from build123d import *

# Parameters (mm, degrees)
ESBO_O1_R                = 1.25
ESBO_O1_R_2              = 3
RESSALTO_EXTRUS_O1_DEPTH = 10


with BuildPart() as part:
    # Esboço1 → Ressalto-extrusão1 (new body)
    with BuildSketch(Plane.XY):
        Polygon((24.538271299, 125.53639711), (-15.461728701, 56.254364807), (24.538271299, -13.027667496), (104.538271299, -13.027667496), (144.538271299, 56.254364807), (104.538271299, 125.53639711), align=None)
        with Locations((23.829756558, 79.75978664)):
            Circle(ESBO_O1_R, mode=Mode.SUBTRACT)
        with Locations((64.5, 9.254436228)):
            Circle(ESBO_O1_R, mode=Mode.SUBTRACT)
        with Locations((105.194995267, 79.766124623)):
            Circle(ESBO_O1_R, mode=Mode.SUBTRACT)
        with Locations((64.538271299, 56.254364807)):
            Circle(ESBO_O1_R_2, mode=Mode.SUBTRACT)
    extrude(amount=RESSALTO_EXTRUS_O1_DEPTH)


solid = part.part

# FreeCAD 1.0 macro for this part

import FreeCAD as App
import Part
import Sketcher
from FreeCAD import Vector
Q = App.Units.Quantity

doc = App.newDocument("Part")
params = doc.addObject("Spreadsheet::Sheet", "Params")
for row, (alias, value) in enumerate([
    ("sketch1_diameter", "6 mm"),
    ("sketch1_diameter2", "2.5 mm"),
    ("sketch1_width", "80 mm"),
    ("sketch1_length", "80 mm"),
    ("pad1_length", "10 mm"),
], start=1):
    params.set(f"A{row}", alias)
    params.set(f"B{row}", "=" + value)
    params.setAlias(f"B{row}", alias)

body = doc.addObject("PartDesign::Body", "Body")

sketch1 = body.newObject("Sketcher::SketchObject", "Sketch")
sketch1.AttachmentSupport = (doc.getObject("XY_Plane"), [""])
sketch1.MapMode = "FlatFace"
sketch1.addGeometry([
    Part.LineSegment(Vector(24.5, 125.5, 0), Vector(-15.5, 56.3, 0)),
    Part.LineSegment(Vector(-15.5, 56.3, 0), Vector(24.5, -13, 0)),
    Part.LineSegment(Vector(24.5, -13, 0), Vector(104.5, -13, 0)),
    Part.LineSegment(Vector(104.5, -13, 0), Vector(144.5, 56.3, 0)),
    Part.LineSegment(Vector(144.5, 56.3, 0), Vector(104.5, 125.5, 0)),
    Part.LineSegment(Vector(104.5, 125.5, 0), Vector(24.5, 125.5, 0)),
    Part.Circle(Vector(64.5, 9.3, 0), Vector(0, 0, 1), 1.2),
    Part.Circle(Vector(23.8, 79.8, 0), Vector(0, 0, 1), 1.2),
    Part.Circle(Vector(64.5, 56.3, 0), Vector(0, 0, 1), 3),
    Part.Circle(Vector(105.2, 79.8, 0), Vector(0, 0, 1), 1.2),
], False)
sketch1.addConstraint([
    Sketcher.Constraint("Coincident", 0, 2, 1, 1),
    Sketcher.Constraint("Coincident", 1, 2, 2, 1),
    Sketcher.Constraint("Coincident", 2, 2, 3, 1),
    Sketcher.Constraint("Coincident", 3, 2, 4, 1),
    Sketcher.Constraint("Coincident", 4, 2, 5, 1),
    Sketcher.Constraint("Coincident", 5, 2, 0, 1),
    Sketcher.Constraint("Horizontal", 2),
    Sketcher.Constraint("Horizontal", 5),
    Sketcher.Constraint("Equal", 6, 7),
    Sketcher.Constraint("Equal", 7, 9),
    Sketcher.Constraint("Parallel", 0, 3),
    Sketcher.Constraint("Parallel", 1, 4),
    Sketcher.Constraint("Horizontal", 8, 3, 0, 2),
    Sketcher.Constraint("Horizontal", 0, 2, 3, 2),
    Sketcher.Constraint("Vertical", 2, 2, 4, 2),
    Sketcher.Constraint("Vertical", 1, 2, 5, 2),
    Sketcher.Constraint("Diameter", 8, Q("6 mm")),
    Sketcher.Constraint("Diameter", 6, Q("2.5 mm")),
    Sketcher.Constraint("DistanceX", 2, 1, 2, 2, Q("80 mm")),
    Sketcher.Constraint("Angle", 0, Q("-120 deg")),
    Sketcher.Constraint("Distance", 0, Q("80 mm")),
    Sketcher.Constraint("DistanceX", 0, 2, 8, 3, Q("80 mm")),
    Sketcher.Constraint("DistanceX", -1, 1, 6, 3, Q("64.5 mm")),
    Sketcher.Constraint("DistanceX", -1, 1, 8, 3, Q("64.538271 mm")),
    Sketcher.Constraint("DistanceY", 6, 3, 7, 3, Q("70.50535 mm")),
    Sketcher.Constraint("DistanceY", 6, 3, 8, 3, Q("46.999929 mm")),
    Sketcher.Constraint("DistanceY", 8, 3, 9, 3, Q("23.51176 mm")),
    Sketcher.Constraint("DistanceX", 7, 3, 9, 3, Q("81.365239 mm")),
    Sketcher.Constraint("DistanceY", -1, 1, 6, 3, Q("9.254436 mm")),
    Sketcher.Constraint("DistanceX", -1, 1, 7, 3, Q("23.829757 mm")),
])
sketch1.setExpression("Constraints[16]", "Params.sketch1_diameter")
sketch1.setExpression("Constraints[17]", "Params.sketch1_diameter2")
sketch1.setExpression("Constraints[18]", "Params.sketch1_width")
sketch1.setExpression("Constraints[20]", "Params.sketch1_length")
pad1 = body.newObject("PartDesign::Pad", "Pad")
pad1.Profile = sketch1
pad1.setExpression("Length", "Params.pad1_length")

doc.recompute()
